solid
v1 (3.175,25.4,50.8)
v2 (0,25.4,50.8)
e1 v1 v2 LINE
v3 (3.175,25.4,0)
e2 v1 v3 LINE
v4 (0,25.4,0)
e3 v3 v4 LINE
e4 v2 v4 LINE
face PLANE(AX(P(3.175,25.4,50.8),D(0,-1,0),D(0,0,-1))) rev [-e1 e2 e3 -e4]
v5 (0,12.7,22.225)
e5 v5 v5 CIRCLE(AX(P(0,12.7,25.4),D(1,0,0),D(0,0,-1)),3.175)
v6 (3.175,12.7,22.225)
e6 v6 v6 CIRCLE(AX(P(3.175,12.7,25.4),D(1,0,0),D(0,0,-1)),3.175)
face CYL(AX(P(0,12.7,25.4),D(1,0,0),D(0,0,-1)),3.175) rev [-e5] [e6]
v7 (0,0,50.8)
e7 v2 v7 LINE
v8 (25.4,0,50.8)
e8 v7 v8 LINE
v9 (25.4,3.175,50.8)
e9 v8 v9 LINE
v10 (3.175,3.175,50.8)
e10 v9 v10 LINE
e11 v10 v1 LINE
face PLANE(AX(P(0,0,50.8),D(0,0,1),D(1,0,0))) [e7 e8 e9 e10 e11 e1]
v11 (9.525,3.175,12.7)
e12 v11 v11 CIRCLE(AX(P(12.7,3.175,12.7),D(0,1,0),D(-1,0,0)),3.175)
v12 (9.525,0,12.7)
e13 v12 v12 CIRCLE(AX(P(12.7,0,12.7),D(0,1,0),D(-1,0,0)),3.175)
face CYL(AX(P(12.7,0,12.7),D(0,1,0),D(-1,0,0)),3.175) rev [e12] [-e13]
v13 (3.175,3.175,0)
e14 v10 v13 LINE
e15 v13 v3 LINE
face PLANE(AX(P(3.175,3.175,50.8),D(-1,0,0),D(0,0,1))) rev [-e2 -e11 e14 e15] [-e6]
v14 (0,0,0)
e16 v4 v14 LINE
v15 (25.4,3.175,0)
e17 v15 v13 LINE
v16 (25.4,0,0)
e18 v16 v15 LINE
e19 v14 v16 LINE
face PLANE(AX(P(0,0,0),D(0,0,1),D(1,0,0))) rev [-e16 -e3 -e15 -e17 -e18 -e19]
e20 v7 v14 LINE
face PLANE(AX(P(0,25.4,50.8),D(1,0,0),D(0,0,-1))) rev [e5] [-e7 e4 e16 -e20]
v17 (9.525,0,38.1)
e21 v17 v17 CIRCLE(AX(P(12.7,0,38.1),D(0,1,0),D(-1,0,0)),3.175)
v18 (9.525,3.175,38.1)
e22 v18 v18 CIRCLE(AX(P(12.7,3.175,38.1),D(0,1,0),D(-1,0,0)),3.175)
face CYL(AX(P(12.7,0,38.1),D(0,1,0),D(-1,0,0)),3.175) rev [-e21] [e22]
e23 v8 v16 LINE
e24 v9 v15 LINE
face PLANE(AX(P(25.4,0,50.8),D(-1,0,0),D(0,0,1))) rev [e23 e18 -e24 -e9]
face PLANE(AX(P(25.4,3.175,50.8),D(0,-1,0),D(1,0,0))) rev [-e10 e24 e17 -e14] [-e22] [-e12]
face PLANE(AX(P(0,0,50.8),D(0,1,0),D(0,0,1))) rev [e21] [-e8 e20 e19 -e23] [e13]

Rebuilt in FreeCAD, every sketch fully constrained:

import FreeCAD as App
import Part
import Sketcher
Q = App.Units.Quantity


def add_polygon(sketch, points):
    """Adds a closed chain of lines whose ends are joined by coincident constraints."""
    first, n = sketch.GeometryCount, len(points)
    for a, b in zip(points, points[1:] + points[:1]):
        sketch.addGeometry(Part.LineSegment(App.Vector(*a, 0), App.Vector(*b, 0)), False)
    for i in range(n):
        sketch.addConstraint(Sketcher.Constraint("Coincident", first + i, 2, first + (i + 1) % n, 1))

doc = App.newDocument("Part")
body = doc.addObject("PartDesign::Body", "Body")

# Sketch on XY plane
sketch1 = body.newObject("Sketcher::SketchObject", "Sketch")
sketch1.AttachmentSupport = (doc.getObject("XY_Plane"), [""])
sketch1.MapMode = "FlatFace"
add_polygon(sketch1, [(0, 0), (25.4, 0), (25.4, 3.2), (3.2, 3.2), (3.2, 25.4), (0, 25.4)])  # lines 0-5
sketch1.addConstraint(Sketcher.Constraint("Horizontal", 0))
sketch1.addConstraint(Sketcher.Constraint("Vertical", 1))
sketch1.addConstraint(Sketcher.Constraint("Horizontal", 2))
sketch1.addConstraint(Sketcher.Constraint("Vertical", 3))
sketch1.addConstraint(Sketcher.Constraint("Horizontal", 4))
sketch1.addConstraint(Sketcher.Constraint("Vertical", 5))
sketch1.addConstraint(Sketcher.Constraint("Coincident", 5, 2, -1, 1))
sketch1.addConstraint(Sketcher.Constraint("Equal", 4, 1))
sketch1.addConstraint(Sketcher.Constraint("Equal", 2, 3))
sketch1.addConstraint(Sketcher.Constraint("DistanceX", 0, 1, 0, 2, Q("1 in")))
sketch1.addConstraint(Sketcher.Constraint("DistanceX", 2, 2, 2, 1, Q("0.875 in")))
pad1 = body.newObject("PartDesign::Pad", "Pad")
pad1.Profile = sketch1
pad1.Length = Q("2 in")

# Sketch on YZ plane
sketch2 = body.newObject("Sketcher::SketchObject", "Sketch001")
sketch2.AttachmentSupport = (doc.getObject("YZ_Plane"), [""])
sketch2.MapMode = "FlatFace"
sketch2.AttachmentOffset = App.Placement(App.Vector(0, 0, 0.125 * 25.4), App.Rotation())
sketch2.addGeometry(Part.Circle(App.Vector(12.7, 25.4, 0), App.Vector(0, 0, 1), 3.2), False)
sketch2.addConstraint(Sketcher.Constraint("Diameter", 0, Q("0.25 in")))
sketch2.addConstraint(Sketcher.Constraint("DistanceY", -1, 1, 0, 3, Q("1 in")))
sketch2.addConstraint(Sketcher.Constraint("DistanceX", -1, 1, 0, 3, Q("0.5 in")))
pocket1 = body.newObject("PartDesign::Pocket", "Pocket")
pocket1.Profile = sketch2
pocket1.Type = "ThroughAll"

# Sketch on XZ plane
sketch3 = body.newObject("Sketcher::SketchObject", "Sketch002")
sketch3.AttachmentSupport = (doc.getObject("XZ_Plane"), [""])
sketch3.MapMode = "FlatFace"
sketch3.AttachmentOffset = App.Placement(App.Vector(0, 0, -0.125 * 25.4), App.Rotation())
sketch3.addGeometry(Part.Circle(App.Vector(12.7, 38.1, 0), App.Vector(0, 0, 1), 3.2), False)
sketch3.addGeometry(Part.Circle(App.Vector(12.7, 12.7, 0), App.Vector(0, 0, 1), 3.2), False)
sketch3.addConstraint(Sketcher.Constraint("Equal", 0, 1))
sketch3.addConstraint(Sketcher.Constraint("Vertical", 0, 3, 1, 3))
sketch3.addConstraint(Sketcher.Constraint("Diameter", 0, Q("0.25 in")))
sketch3.addConstraint(Sketcher.Constraint("DistanceY", 1, 3, 0, 3, Q("1 in")))
sketch3.addConstraint(Sketcher.Constraint("DistanceX", -1, 1, 0, 3, Q("0.5 in")))
sketch3.addConstraint(Sketcher.Constraint("DistanceY", -1, 1, 0, 3, Q("1.5 in")))
pocket2 = body.newObject("PartDesign::Pocket", "Pocket001")
pocket2.Profile = sketch3
pocket2.Type = "ThroughAll"
pocket2.Reversed = True

doc.recompute()
